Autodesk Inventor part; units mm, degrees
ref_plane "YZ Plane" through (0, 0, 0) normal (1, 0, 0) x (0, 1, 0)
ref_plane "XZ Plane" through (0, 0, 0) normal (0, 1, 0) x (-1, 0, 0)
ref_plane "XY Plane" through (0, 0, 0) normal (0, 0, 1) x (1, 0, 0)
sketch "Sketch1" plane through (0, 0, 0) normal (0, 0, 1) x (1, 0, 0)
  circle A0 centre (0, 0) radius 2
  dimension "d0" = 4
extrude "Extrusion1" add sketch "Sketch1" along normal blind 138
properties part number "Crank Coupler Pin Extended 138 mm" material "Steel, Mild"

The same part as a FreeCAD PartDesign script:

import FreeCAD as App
import Part
import Sketcher
from FreeCAD import Vector

doc = App.newDocument("Part")
body = doc.addObject("PartDesign::Body", "Body")

# Sketch on XY plane
sketch1 = body.newObject("Sketcher::SketchObject", "Sketch")
sketch1.AttachmentSupport = (doc.getObject("XY_Plane"), [""])
sketch1.MapMode = "FlatFace"
sketch1.addGeometry(Part.Circle(Vector(0, 0, 0), Vector(0, 0, 1), 2), False)
sketch1.addConstraint([
    Sketcher.Constraint("Coincident", 0, 3, -1, 1),
    Sketcher.Constraint("Diameter", 0, 4.0),
])
pad1 = body.newObject("PartDesign::Pad", "Pad")
pad1.Profile = sketch1
pad1.Length = 138

doc.recompute()
